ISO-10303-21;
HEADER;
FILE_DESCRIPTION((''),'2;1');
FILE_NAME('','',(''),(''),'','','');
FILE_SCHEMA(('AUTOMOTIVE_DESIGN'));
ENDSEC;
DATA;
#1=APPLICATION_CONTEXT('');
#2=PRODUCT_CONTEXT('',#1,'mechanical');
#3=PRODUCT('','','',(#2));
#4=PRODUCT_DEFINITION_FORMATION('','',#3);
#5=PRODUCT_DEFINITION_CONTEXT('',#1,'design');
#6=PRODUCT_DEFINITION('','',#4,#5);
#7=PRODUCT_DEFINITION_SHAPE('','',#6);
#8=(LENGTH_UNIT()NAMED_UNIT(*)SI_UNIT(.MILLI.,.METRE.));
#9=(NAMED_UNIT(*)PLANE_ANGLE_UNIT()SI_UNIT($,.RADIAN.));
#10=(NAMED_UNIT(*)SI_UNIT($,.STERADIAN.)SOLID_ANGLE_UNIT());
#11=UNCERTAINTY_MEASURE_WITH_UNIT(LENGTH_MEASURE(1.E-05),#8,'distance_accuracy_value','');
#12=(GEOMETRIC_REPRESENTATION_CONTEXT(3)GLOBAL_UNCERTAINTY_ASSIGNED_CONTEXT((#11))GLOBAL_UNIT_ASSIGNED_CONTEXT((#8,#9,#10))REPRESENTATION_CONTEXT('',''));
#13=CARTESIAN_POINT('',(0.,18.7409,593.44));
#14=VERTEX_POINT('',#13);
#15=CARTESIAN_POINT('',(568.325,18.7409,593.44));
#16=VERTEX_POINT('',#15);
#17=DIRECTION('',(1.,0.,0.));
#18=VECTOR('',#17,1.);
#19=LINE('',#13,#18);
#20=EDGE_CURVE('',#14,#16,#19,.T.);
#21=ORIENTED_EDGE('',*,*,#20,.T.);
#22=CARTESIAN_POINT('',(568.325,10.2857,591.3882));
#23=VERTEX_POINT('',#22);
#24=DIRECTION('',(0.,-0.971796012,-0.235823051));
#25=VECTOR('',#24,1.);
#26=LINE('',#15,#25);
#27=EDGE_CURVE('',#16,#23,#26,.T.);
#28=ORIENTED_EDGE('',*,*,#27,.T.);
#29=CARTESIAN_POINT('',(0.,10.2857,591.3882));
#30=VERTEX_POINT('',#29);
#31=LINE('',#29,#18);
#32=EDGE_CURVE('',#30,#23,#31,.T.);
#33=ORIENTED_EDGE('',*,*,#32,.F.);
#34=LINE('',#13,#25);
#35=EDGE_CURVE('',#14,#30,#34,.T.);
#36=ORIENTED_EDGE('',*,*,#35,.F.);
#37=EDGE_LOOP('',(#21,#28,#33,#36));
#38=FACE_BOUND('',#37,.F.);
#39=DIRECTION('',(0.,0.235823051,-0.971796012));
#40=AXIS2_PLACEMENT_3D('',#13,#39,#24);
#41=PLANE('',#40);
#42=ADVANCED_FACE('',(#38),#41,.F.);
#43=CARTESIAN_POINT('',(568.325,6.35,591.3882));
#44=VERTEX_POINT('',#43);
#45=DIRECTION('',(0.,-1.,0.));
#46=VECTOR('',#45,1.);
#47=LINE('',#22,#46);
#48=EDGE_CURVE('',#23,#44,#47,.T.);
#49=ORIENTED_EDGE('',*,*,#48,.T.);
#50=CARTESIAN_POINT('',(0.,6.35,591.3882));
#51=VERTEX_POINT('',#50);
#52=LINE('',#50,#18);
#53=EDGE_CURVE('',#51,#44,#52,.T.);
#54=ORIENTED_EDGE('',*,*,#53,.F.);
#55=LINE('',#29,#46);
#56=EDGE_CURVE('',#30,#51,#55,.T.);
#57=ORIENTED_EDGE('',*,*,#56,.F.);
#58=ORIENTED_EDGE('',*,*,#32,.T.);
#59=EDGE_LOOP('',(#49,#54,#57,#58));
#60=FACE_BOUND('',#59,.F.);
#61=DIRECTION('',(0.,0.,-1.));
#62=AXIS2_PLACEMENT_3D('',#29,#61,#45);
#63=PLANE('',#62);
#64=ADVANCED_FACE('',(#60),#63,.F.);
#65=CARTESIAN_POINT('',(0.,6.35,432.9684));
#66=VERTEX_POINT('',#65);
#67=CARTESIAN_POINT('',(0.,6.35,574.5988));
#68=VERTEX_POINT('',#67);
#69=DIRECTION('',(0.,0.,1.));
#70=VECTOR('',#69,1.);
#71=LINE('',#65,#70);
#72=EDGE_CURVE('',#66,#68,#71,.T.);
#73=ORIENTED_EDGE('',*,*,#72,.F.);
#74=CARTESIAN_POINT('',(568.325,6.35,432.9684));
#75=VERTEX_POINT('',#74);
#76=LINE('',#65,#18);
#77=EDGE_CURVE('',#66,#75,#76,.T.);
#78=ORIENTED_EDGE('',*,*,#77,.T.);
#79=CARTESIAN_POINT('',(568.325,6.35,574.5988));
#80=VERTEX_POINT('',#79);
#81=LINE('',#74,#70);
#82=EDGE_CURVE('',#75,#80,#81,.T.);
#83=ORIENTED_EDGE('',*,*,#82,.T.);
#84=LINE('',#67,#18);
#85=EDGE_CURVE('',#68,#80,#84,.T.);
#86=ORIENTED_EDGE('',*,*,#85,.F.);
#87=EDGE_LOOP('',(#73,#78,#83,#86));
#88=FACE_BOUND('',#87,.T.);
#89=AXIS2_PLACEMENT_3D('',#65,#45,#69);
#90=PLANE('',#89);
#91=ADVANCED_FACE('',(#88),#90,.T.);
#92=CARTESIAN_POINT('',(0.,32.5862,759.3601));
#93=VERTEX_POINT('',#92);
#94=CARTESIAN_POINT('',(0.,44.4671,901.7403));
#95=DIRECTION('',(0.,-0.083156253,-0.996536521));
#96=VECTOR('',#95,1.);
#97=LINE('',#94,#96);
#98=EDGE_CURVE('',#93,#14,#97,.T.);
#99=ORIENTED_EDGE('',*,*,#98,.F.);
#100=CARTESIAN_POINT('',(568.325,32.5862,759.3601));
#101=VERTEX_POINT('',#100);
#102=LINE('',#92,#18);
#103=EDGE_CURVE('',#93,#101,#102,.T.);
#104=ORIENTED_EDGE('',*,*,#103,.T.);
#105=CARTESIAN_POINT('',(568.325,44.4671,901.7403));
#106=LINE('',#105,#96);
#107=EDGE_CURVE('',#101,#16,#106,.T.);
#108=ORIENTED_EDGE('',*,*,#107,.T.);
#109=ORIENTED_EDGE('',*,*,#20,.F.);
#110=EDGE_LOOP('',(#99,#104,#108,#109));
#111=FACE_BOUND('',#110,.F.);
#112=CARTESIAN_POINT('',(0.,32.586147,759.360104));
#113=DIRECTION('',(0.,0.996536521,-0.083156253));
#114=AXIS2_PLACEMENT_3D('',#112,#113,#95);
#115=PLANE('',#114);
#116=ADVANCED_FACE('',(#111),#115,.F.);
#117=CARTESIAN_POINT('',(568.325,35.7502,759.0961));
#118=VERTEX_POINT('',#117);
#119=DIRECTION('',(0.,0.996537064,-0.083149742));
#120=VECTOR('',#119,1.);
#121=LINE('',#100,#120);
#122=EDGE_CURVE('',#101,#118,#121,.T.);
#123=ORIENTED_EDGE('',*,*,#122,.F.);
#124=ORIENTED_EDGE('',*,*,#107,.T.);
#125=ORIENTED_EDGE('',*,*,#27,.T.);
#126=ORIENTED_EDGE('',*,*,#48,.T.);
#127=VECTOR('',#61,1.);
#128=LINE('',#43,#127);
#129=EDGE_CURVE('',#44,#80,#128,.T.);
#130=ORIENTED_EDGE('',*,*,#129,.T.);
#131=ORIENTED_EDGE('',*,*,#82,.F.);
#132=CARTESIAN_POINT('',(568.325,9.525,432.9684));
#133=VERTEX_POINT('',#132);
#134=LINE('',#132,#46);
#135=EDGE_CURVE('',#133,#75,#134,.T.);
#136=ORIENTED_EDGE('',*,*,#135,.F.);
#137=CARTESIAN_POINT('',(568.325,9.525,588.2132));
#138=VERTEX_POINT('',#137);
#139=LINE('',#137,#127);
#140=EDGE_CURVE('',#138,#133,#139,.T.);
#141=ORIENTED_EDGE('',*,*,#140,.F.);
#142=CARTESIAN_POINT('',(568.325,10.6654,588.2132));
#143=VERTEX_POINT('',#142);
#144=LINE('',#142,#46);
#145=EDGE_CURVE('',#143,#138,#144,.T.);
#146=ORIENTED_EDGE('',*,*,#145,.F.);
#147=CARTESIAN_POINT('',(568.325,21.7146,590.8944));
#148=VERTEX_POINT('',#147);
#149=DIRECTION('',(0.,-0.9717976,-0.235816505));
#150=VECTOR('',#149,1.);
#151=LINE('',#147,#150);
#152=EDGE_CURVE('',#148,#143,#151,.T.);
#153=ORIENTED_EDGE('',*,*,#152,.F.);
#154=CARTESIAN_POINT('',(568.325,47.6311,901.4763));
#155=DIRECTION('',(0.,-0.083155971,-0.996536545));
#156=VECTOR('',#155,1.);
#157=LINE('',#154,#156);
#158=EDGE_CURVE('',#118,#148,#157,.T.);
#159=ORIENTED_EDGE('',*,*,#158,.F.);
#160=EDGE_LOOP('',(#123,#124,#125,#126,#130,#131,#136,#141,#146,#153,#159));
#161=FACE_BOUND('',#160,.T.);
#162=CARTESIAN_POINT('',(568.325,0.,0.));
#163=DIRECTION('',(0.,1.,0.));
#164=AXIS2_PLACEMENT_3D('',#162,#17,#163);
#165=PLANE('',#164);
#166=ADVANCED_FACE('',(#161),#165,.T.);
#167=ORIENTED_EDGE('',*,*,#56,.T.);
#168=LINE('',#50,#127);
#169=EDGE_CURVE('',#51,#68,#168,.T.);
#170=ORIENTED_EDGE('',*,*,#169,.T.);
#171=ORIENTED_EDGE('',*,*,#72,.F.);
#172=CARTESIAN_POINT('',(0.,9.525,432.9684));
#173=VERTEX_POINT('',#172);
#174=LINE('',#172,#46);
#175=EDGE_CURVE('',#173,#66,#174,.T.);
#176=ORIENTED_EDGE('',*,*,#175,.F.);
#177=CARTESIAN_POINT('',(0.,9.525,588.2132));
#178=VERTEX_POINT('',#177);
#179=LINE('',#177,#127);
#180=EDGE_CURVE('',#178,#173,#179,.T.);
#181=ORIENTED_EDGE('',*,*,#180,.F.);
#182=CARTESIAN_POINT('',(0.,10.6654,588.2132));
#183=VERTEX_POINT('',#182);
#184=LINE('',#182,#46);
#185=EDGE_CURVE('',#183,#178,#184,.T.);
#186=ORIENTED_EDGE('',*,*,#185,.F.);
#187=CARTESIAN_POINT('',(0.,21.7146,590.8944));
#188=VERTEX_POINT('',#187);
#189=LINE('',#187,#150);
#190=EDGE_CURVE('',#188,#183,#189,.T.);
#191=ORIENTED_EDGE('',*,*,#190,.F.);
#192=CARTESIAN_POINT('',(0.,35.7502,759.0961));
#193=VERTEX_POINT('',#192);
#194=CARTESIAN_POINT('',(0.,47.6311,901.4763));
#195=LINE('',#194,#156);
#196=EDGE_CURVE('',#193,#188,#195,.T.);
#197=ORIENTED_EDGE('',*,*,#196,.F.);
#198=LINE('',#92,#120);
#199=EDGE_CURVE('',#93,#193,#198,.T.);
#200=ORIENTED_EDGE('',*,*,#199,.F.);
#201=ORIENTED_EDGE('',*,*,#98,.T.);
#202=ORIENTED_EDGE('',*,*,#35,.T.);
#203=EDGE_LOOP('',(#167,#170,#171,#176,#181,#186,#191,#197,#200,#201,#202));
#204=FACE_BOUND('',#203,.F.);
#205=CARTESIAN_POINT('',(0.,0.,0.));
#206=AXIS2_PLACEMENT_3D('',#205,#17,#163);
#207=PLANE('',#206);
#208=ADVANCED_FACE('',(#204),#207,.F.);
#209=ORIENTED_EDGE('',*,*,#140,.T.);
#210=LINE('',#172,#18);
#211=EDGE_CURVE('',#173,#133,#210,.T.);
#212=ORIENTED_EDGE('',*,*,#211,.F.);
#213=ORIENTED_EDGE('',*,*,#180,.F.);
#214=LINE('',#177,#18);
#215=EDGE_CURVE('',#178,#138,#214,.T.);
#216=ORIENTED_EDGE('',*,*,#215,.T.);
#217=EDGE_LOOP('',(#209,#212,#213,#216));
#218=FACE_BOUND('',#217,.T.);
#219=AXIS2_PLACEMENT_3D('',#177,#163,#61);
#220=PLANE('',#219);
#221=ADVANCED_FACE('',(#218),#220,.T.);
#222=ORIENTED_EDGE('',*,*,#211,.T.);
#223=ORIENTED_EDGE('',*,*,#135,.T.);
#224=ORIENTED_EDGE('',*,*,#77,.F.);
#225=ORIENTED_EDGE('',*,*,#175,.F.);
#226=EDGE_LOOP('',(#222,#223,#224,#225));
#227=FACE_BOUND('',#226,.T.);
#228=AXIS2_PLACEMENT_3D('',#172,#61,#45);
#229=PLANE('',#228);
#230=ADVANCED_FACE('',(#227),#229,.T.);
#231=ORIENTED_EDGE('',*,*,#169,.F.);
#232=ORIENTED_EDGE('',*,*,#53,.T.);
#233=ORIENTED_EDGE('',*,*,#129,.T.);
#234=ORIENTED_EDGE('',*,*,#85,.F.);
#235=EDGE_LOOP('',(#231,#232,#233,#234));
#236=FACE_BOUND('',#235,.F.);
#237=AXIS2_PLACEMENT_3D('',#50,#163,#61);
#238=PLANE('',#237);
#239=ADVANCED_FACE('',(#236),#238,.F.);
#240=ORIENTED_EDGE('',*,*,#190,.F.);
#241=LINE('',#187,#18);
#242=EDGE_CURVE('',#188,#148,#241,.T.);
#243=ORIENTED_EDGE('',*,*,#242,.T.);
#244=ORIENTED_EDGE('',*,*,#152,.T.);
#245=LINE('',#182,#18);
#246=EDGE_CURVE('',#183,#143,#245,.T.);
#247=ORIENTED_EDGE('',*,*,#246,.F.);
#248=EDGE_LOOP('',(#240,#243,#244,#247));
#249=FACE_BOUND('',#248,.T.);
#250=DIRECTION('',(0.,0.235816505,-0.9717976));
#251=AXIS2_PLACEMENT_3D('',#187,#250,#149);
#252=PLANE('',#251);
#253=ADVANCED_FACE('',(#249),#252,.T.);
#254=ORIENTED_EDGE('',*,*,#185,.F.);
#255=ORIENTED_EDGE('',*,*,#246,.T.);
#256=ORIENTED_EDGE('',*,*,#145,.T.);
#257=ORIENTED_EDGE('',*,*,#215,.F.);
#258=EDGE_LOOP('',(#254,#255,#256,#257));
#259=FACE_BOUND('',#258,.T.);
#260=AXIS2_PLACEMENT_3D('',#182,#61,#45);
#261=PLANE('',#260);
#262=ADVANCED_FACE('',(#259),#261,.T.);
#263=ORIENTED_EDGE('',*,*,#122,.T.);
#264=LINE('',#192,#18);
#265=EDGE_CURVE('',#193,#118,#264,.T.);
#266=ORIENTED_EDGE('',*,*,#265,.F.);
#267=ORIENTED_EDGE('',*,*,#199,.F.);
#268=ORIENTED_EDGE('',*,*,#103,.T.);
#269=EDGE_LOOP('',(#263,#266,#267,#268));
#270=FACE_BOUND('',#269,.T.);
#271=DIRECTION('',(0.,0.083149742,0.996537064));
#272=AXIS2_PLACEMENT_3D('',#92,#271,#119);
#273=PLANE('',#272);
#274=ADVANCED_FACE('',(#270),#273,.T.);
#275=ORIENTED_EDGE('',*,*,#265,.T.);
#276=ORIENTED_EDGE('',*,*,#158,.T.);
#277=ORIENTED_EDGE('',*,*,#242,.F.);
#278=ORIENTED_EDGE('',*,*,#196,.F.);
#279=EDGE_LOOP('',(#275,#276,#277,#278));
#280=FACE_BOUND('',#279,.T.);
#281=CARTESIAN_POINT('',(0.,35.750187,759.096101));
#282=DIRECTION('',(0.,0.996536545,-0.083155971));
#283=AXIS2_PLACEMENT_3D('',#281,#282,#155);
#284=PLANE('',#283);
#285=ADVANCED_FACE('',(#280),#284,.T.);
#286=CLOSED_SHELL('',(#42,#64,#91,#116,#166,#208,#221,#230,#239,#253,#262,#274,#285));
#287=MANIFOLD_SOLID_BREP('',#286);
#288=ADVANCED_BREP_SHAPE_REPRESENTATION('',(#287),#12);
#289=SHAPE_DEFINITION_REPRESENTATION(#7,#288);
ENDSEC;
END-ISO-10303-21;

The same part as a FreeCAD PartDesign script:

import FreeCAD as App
import Part
import Sketcher
Q = App.Units.Quantity

doc = App.newDocument("Part")
body = doc.addObject("PartDesign::Body", "Body")

# Sketch on YZ plane
sketch1 = body.newObject("Sketcher::SketchObject", "Sketch")
sketch1.AttachmentSupport = (doc.getObject("YZ_Plane"), [""])
sketch1.MapMode = "FlatFace"
sketch1.addGeometry(Part.LineSegment(App.Vector(6.35, 591.3882, 0), App.Vector(6.35, 432.9684, 0)), False)
sketch1.addGeometry(Part.LineSegment(App.Vector(6.35, 432.9684, 0), App.Vector(9.525, 432.9684, 0)), False)
sketch1.addGeometry(Part.LineSegment(App.Vector(9.525, 432.9684, 0), App.Vector(9.525, 588.2132, 0)), False)
sketch1.addGeometry(Part.LineSegment(App.Vector(9.525, 588.2132, 0), App.Vector(10.6654, 588.2132, 0)), False)
sketch1.addGeometry(Part.LineSegment(App.Vector(10.6654, 588.2132, 0), App.Vector(21.7146, 590.8944, 0)), False)
sketch1.addGeometry(Part.LineSegment(App.Vector(21.7146, 590.8944, 0), App.Vector(35.750187, 759.096101, 0)), False)
sketch1.addGeometry(Part.LineSegment(App.Vector(35.7502, 759.0961, 0), App.Vector(32.5862, 759.3601, 0)), False)
sketch1.addGeometry(Part.LineSegment(App.Vector(32.586147, 759.360104, 0), App.Vector(18.7409, 593.44, 0)), False)
sketch1.addGeometry(Part.LineSegment(App.Vector(18.7409, 593.44, 0), App.Vector(10.2857, 591.3882, 0)), False)
sketch1.addGeometry(Part.LineSegment(App.Vector(10.2857, 591.3882, 0), App.Vector(6.35, 591.3882, 0)), False)
sketch1.addConstraint(Sketcher.Constraint("Coincident", 0, 2, 1, 1))
sketch1.addConstraint(Sketcher.Constraint("Coincident", 1, 2, 2, 1))
sketch1.addConstraint(Sketcher.Constraint("Coincident", 2, 2, 3, 1))
sketch1.addConstraint(Sketcher.Constraint("Coincident", 3, 2, 4, 1))
sketch1.addConstraint(Sketcher.Constraint("Coincident", 4, 2, 5, 1))
sketch1.addConstraint(Sketcher.Constraint("Coincident", 5, 2, 6, 1))
sketch1.addConstraint(Sketcher.Constraint("Coincident", 6, 2, 7, 1))
sketch1.addConstraint(Sketcher.Constraint("Coincident", 7, 2, 8, 1))
sketch1.addConstraint(Sketcher.Constraint("Coincident", 8, 2, 9, 1))
sketch1.addConstraint(Sketcher.Constraint("Coincident", 9, 2, 0, 1))
sketch1.addConstraint(Sketcher.Constraint("Vertical", 0))
sketch1.addConstraint(Sketcher.Constraint("Horizontal", 1))
sketch1.addConstraint(Sketcher.Constraint("Vertical", 2))
sketch1.addConstraint(Sketcher.Constraint("Horizontal", 3))
sketch1.addConstraint(Sketcher.Constraint("Horizontal", 9))
sketch1.addConstraint(Sketcher.Constraint("DistanceX", 1, 1, 1, 2, Q("0.125 in")))
sketch1.addConstraint(Sketcher.Constraint("DistanceY", 2, 1, 2, 2, Q("6.112 in")))
sketch1.addConstraint(Sketcher.Constraint("Distance", 6, Q("0.125 in")))
sketch1.addConstraint(Sketcher.Constraint("DistanceX", 3, 1, 3, 2, Q("0.0449 in")))
sketch1.addConstraint(Sketcher.Constraint("DistanceY", 3, 2, 8, 2, Q("0.125 in")))
sketch1.addConstraint(Sketcher.Constraint("DistanceX", 9, 2, 9, 1, Q("3.9357 mm")))
sketch1.addConstraint(Sketcher.Constraint("Distance", 4, Q("11.3699 mm")))
sketch1.addConstraint(Sketcher.Constraint("Distance", 5, Q("168.7863 mm")))
sketch1.addConstraint(Sketcher.Constraint("Distance", 8, Q("8.7006 mm")))
sketch1.addConstraint(Sketcher.Constraint("DistanceX", -1, 1, 0, 2, Q("0.25 in")))
sketch1.addConstraint(Sketcher.Constraint("Distance", 7, Q("6.555 in")))
sketch1.addConstraint(Sketcher.Constraint("DistanceY", -1, 1, 0, 2, Q("17.046 in")))
sketch1.addConstraint(Sketcher.Constraint("DistanceX", 3, 2, 4, 2, Q("0.435 in")))
sketch1.addConstraint(Sketcher.Constraint("DistanceX", 3, 2, 5, 2, Q("0.9876 in")))
sketch1.addConstraint(Sketcher.Constraint("DistanceY", 5, 2, 6, 2, Q("0.0104 in")))
pad1 = body.newObject("PartDesign::Pad", "Pad")
pad1.Profile = sketch1
pad1.Length = Q("22.375 in")

doc.recompute()
